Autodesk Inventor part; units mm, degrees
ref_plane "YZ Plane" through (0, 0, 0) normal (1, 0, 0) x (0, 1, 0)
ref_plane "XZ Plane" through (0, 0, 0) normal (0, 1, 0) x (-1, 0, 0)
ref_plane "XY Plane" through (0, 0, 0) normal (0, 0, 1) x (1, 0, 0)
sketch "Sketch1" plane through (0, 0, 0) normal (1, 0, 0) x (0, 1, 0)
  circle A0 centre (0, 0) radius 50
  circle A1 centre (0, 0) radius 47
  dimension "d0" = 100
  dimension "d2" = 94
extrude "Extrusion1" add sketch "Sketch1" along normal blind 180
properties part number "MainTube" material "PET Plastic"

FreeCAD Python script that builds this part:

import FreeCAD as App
import Part
import Sketcher

doc = App.newDocument("Part")
body = doc.addObject("PartDesign::Body", "Body")

# Sketch on YZ plane
sketch1 = doc.addObject("Sketcher::SketchObject", "Sketch")
body.addObject(sketch1)
sketch1.AttachmentSupport = (doc.YZ_Plane, [""])
sketch1.MapMode = "FlatFace"
sketch1.addGeometry([
    Part.Circle(App.Vector(0, 0, 0), App.Vector(0, 0, 1), 50),
    Part.Circle(App.Vector(0, 0, 0), App.Vector(0, 0, 1), 47),
], False)
sketch1.addConstraint([
    Sketcher.Constraint("Coincident", 0, 3, -1, 1),
    Sketcher.Constraint("Coincident", 1, 3, -1, 1),
    Sketcher.Constraint("Diameter", 0, 100.0),
    Sketcher.Constraint("Diameter", 1, 94.0),
])
pad1 = doc.addObject("PartDesign::Pad", "Pad")
body.addObject(pad1)
pad1.Profile = sketch1
pad1.Length = 180

doc.recompute()
